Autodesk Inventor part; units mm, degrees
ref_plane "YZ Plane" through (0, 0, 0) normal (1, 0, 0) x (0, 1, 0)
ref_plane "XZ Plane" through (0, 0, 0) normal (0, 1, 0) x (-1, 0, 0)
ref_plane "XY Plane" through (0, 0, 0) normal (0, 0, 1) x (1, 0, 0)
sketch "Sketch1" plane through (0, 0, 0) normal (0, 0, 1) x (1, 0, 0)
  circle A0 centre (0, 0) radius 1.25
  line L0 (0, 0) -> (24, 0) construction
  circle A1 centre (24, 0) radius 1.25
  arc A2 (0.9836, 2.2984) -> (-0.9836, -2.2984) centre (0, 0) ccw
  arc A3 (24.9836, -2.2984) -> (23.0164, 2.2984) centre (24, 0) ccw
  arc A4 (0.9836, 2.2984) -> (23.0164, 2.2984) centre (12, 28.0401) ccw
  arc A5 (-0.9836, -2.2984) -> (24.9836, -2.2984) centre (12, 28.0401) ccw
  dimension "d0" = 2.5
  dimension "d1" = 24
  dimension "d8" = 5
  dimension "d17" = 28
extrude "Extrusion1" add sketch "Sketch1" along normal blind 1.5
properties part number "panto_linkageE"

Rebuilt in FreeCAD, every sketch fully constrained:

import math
import FreeCAD as App
import Part
import Sketcher
Q = App.Units.Quantity

doc = App.newDocument("Part")
body = doc.addObject("PartDesign::Body", "Body")

sketch1 = doc.addObject("Sketcher::SketchObject", "Sketch")
body.addObject(sketch1)
sketch1.AttachmentSupport = (doc.XY_Plane, [""])
sketch1.MapMode = "FlatFace"
sketch1.addGeometry(Part.ArcOfCircle(Part.Circle(App.Vector(12, 28, 0), App.Vector(0, 0, 1), 28), math.radians(-113), math.radians(-67)), False)
sketch1.addGeometry(Part.ArcOfCircle(Part.Circle(App.Vector(0, 0, 0), App.Vector(0, 0, 1), 2.5), math.radians(67), math.radians(247)), False)
sketch1.addGeometry(Part.ArcOfCircle(Part.Circle(App.Vector(12, 28, 0), App.Vector(0, 0, 1), 33), math.radians(-113), math.radians(-67)), False)
sketch1.addGeometry(Part.ArcOfCircle(Part.Circle(App.Vector(24, 0, 0), App.Vector(0, 0, 1), 2.5), math.radians(-67), math.radians(113)), False)
sketch1.addGeometry(Part.Circle(App.Vector(0, 0, 0), App.Vector(0, 0, 1), 1.2), False)
sketch1.addGeometry(Part.Circle(App.Vector(24, 0, 0), App.Vector(0, 0, 1), 1.2), False)
sketch1.addConstraint(Sketcher.Constraint("Tangent", 0, 1, 1, 1))
sketch1.addConstraint(Sketcher.Constraint("Tangent", 1, 2, 2, 1))
sketch1.addConstraint(Sketcher.Constraint("Tangent", 2, 2, 3, 1))
sketch1.addConstraint(Sketcher.Constraint("Tangent", 3, 2, 0, 2))
sketch1.addConstraint(Sketcher.Constraint("Coincident", 1, 3, -1, 1))
sketch1.addConstraint(Sketcher.Constraint("Coincident", 4, 3, -1, 1))
sketch1.addConstraint(Sketcher.Constraint("Coincident", 2, 3, 0, 3))
sketch1.addConstraint(Sketcher.Constraint("Coincident", 5, 3, 3, 3))
sketch1.addConstraint(Sketcher.Constraint("Equal", 4, 5))
sketch1.addConstraint(Sketcher.Constraint("PointOnObject", 3, 3, -1))
sketch1.addConstraint(Sketcher.Constraint("Radius", 0, Q("28 mm")))
sketch1.addConstraint(Sketcher.Constraint("Diameter", 4, Q("2.5 mm")))
sketch1.addConstraint(Sketcher.Constraint("Radius", 1, Q("2.5 mm")))
sketch1.addConstraint(Sketcher.Constraint("DistanceX", -1, 1, 3, 3, Q("24 mm")))
pad1 = doc.addObject("PartDesign::Pad", "Pad")
body.addObject(pad1)
pad1.Profile = sketch1
pad1.Length = 1.5

doc.recompute()
